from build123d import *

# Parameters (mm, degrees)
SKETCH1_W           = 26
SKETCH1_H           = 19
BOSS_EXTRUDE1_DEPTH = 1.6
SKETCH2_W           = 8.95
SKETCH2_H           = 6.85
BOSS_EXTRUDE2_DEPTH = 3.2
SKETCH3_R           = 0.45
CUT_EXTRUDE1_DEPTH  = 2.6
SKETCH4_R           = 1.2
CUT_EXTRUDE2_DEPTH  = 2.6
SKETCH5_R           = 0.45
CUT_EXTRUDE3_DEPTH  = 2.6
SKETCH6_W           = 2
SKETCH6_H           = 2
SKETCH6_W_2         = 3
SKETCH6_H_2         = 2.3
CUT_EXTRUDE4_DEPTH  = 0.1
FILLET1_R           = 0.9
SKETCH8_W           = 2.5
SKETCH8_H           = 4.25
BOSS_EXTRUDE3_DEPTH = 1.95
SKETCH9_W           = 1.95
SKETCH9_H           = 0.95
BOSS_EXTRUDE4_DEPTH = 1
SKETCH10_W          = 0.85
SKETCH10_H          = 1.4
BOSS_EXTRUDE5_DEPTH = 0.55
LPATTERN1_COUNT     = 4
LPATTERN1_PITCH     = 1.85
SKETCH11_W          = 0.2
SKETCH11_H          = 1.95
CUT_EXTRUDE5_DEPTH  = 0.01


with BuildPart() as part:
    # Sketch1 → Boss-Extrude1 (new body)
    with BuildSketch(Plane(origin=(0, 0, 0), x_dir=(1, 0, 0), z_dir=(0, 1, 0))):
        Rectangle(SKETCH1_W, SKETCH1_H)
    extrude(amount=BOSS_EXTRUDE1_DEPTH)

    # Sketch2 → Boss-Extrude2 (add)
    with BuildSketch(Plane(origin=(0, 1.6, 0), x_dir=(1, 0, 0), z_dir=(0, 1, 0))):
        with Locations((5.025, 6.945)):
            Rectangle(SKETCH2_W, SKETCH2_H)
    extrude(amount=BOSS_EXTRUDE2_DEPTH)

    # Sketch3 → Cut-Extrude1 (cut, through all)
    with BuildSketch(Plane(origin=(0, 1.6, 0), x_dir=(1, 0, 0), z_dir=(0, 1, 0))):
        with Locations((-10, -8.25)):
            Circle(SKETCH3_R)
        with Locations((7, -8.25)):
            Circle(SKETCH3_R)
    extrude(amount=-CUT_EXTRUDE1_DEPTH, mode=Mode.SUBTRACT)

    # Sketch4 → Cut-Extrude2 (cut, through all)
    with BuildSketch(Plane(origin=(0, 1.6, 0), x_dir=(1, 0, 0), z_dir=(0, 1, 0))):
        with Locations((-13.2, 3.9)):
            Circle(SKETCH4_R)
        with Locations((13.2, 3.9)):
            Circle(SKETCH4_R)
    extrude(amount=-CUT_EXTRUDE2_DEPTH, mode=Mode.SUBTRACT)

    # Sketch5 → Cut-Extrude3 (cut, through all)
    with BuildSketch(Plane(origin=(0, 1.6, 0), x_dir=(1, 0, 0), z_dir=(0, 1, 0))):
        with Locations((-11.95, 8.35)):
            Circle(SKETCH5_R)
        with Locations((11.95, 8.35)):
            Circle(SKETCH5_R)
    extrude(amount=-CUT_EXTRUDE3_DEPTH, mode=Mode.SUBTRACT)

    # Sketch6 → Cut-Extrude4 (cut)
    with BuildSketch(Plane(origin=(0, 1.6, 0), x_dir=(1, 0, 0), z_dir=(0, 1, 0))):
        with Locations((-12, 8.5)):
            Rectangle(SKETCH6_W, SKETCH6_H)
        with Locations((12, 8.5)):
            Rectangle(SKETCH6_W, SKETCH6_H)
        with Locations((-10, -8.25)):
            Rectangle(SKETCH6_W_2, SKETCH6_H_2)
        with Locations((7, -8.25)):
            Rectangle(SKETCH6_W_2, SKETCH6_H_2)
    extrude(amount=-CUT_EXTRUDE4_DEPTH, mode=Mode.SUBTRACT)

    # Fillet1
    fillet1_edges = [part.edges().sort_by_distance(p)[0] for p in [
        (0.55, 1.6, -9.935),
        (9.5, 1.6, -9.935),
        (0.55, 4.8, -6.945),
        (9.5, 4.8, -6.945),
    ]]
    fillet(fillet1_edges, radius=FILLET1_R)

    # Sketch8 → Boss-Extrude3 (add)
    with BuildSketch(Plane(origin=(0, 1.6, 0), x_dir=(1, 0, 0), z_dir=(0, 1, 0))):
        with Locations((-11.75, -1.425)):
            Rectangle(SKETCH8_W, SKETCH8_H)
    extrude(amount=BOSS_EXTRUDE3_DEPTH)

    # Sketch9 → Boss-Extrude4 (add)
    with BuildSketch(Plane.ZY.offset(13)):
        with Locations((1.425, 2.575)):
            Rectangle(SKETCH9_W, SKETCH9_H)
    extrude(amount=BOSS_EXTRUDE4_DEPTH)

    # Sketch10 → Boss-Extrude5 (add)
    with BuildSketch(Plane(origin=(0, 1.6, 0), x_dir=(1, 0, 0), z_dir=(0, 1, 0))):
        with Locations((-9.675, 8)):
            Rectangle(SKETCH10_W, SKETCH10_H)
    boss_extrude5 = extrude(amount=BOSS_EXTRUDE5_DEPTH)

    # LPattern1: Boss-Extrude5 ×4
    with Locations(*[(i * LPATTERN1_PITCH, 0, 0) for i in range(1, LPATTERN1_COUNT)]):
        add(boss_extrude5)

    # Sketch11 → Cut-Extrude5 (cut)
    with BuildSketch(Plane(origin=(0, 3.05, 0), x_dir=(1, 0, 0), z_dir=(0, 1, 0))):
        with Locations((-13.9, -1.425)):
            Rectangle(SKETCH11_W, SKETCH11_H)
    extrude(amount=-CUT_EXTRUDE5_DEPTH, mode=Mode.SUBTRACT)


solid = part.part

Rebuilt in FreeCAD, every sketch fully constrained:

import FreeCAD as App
import Part
import Sketcher

V = App.Vector


def edges_at(feature, points):
    """Names of the edges that pass closest to the given points."""
    edges = feature.Shape.Edges
    near = lambda p: min(range(len(edges)), key=lambda i: edges[i].distToShape(Part.Vertex(*p))[0])
    return sorted({f"Edge{near(p) + 1}" for p in points})

doc = App.newDocument("Part")
params = doc.addObject("Spreadsheet::Sheet", "Params")
for row, (alias, value) in enumerate([
    ("sketch1_width", "26 mm"),
    ("sketch1_height", "19 mm"),
    ("pad1_length", "1.6 mm"),
    ("sketch2_width", "8.95 mm"),
    ("sketch2_height", "6.85 mm"),
    ("pad2_length", "3.2 mm"),
    ("sketch3_diameter", "0.9 mm"),
    ("sketch4_diameter", "2.4 mm"),
    ("sketch5_diameter", "0.9 mm"),
    ("sketch6_width", "2 mm"),
    ("sketch6_width2", "3 mm"),
    ("sketch6_height", "2.3 mm"),
    ("pocket4_length", "0.1 mm"),
    ("fillet_radius", "0.9 mm"),
    ("sketch7_width", "2.5 mm"),
    ("sketch7_height", "4.25 mm"),
    ("pad3_length", "1.95 mm"),
    ("sketch8_width", "0.95 mm"),
    ("sketch8_height", "1.95 mm"),
    ("pad4_length", "1 mm"),
    ("sketch9_height", "1.4 mm"),
    ("sketch9_width", "0.85 mm"),
    ("pad5_length", "0.55 mm"),
    ("linearpattern_pitch", "1.85 mm"),
    ("sketch10_width", "0.2 mm"),
    ("sketch10_height", "1.95 mm"),
    ("pocket5_length", "0.01 mm"),
], start=1):
    params.set(f"A{row}", alias)
    params.set(f"B{row}", "=" + value)
    params.setAlias(f"B{row}", alias)

body = doc.addObject("PartDesign::Body", "Body")

# Sketch on XZ plane
sketch1 = body.newObject("Sketcher::SketchObject", "Sketch")
sketch1.AttachmentSupport = (doc.getObject("XZ_Plane"), [""])
sketch1.MapMode = "FlatFace"
sketch1.addGeometry(Part.LineSegment(V(-13, -9.5, 0), V(-13, 9.5, 0)), False)
sketch1.addGeometry(Part.LineSegment(V(-13, 9.5, 0), V(13, 9.5, 0)), False)
sketch1.addGeometry(Part.LineSegment(V(13, 9.5, 0), V(13, -9.5, 0)), False)
sketch1.addGeometry(Part.LineSegment(V(13, -9.5, 0), V(-13, -9.5, 0)), False)
sketch1.addConstraint(Sketcher.Constraint("Coincident", 0, 2, 1, 1))
sketch1.addConstraint(Sketcher.Constraint("Coincident", 1, 2, 2, 1))
sketch1.addConstraint(Sketcher.Constraint("Coincident", 2, 2, 3, 1))
sketch1.addConstraint(Sketcher.Constraint("Coincident", 3, 2, 0, 1))
sketch1.addConstraint(Sketcher.Constraint("Vertical", 0))
sketch1.addConstraint(Sketcher.Constraint("Horizontal", 1))
sketch1.addConstraint(Sketcher.Constraint("Vertical", 2))
sketch1.addConstraint(Sketcher.Constraint("Horizontal", 3))
sketch1.addConstraint(Sketcher.Constraint("Symmetric", 0, 2, 2, 2, -1, 1))
sketch1.addConstraint(Sketcher.Constraint("DistanceX", 1, 1, 1, 2, 26.0))
sketch1.addConstraint(Sketcher.Constraint("DistanceY", 0, 1, 0, 2, 19.0))
sketch1.setExpression("Constraints[9]", "Params.sketch1_width")
sketch1.setExpression("Constraints[10]", "Params.sketch1_height")
pad1 = body.newObject("PartDesign::Pad", "Pad")
pad1.Profile = sketch1
pad1.setExpression("Length", "Params.pad1_length")
pad1.Reversed = True

# Sketch on XZ plane
sketch2 = body.newObject("Sketcher::SketchObject", "Sketch001")
sketch2.AttachmentSupport = (doc.getObject("XZ_Plane"), [""])
sketch2.MapMode = "FlatFace"
sketch2.AttachmentOffset = App.Placement(V(0, 0, -1.6), App.Rotation())
sketch2.addGeometry(Part.LineSegment(V(0.55, -10.37, 0), V(0.55, -3.52, 0)), False)
sketch2.addGeometry(Part.LineSegment(V(0.55, -3.52, 0), V(9.5, -3.52, 0)), False)
sketch2.addGeometry(Part.LineSegment(V(9.5, -3.52, 0), V(9.5, -10.37, 0)), False)
sketch2.addGeometry(Part.LineSegment(V(9.5, -10.37, 0), V(0.55, -10.37, 0)), False)
sketch2.addConstraint(Sketcher.Constraint("Coincident", 0, 2, 1, 1))
sketch2.addConstraint(Sketcher.Constraint("Coincident", 1, 2, 2, 1))
sketch2.addConstraint(Sketcher.Constraint("Coincident", 2, 2, 3, 1))
sketch2.addConstraint(Sketcher.Constraint("Coincident", 3, 2, 0, 1))
sketch2.addConstraint(Sketcher.Constraint("Vertical", 0))
sketch2.addConstraint(Sketcher.Constraint("Horizontal", 1))
sketch2.addConstraint(Sketcher.Constraint("Vertical", 2))
sketch2.addConstraint(Sketcher.Constraint("Horizontal", 3))
sketch2.addConstraint(Sketcher.Constraint("DistanceX", 1, 1, 1, 2, 8.95))
sketch2.addConstraint(Sketcher.Constraint("DistanceY", 0, 1, 0, 2, 6.85))
sketch2.addConstraint(Sketcher.Constraint("DistanceX", -1, 1, 1, 2, 9.5))
sketch2.addConstraint(Sketcher.Constraint("DistanceY", 0, 2, -1, 1, 3.52))
sketch2.setExpression("Constraints[8]", "Params.sketch2_width")
sketch2.setExpression("Constraints[9]", "Params.sketch2_height")
pad2 = body.newObject("PartDesign::Pad", "Pad001")
pad2.Profile = sketch2
pad2.setExpression("Length", "Params.pad2_length")
pad2.Reversed = True

# Sketch on XZ plane
sketch3 = body.newObject("Sketcher::SketchObject", "Sketch002")
sketch3.AttachmentSupport = (doc.getObject("XZ_Plane"), [""])
sketch3.MapMode = "FlatFace"
sketch3.AttachmentOffset = App.Placement(V(0, 0, -1.6), App.Rotation())
sketch3.addGeometry(Part.Circle(V(-10, 8.25, 0), V(0, 0, 1), 0.45), False)
sketch3.addGeometry(Part.Circle(V(7, 8.25, 0), V(0, 0, 1), 0.45), False)
sketch3.addConstraint(Sketcher.Constraint("Equal", 0, 1))
sketch3.addConstraint(Sketcher.Constraint("Horizontal", 0, 3, 1, 3))
sketch3.addConstraint(Sketcher.Constraint("Diameter", 0, 0.9))
sketch3.addConstraint(Sketcher.Constraint("DistanceX", 0, 3, -1, 1, 10.0))
sketch3.addConstraint(Sketcher.Constraint("DistanceX", -1, 1, 1, 3, 7.0))
sketch3.addConstraint(Sketcher.Constraint("DistanceY", -1, 1, 0, 3, 8.25))
sketch3.setExpression("Constraints[2]", "Params.sketch3_diameter")
pocket1 = body.newObject("PartDesign::Pocket", "Pocket")
pocket1.Profile = sketch3
pocket1.Type = "ThroughAll"
pocket1.Reversed = True

# Sketch on XZ plane
sketch4 = body.newObject("Sketcher::SketchObject", "Sketch003")
sketch4.AttachmentSupport = (doc.getObject("XZ_Plane"), [""])
sketch4.MapMode = "FlatFace"
sketch4.AttachmentOffset = App.Placement(V(0, 0, -1.6), App.Rotation())
sketch4.addGeometry(Part.Circle(V(-13.2, -3.9, 0), V(0, 0, 1), 1.2), False)
sketch4.addGeometry(Part.Circle(V(13.2, -3.9, 0), V(0, 0, 1), 1.2), False)
sketch4.addConstraint(Sketcher.Constraint("Equal", 0, 1))
sketch4.addConstraint(Sketcher.Constraint("Symmetric", 0, 3, 1, 3, -2))
sketch4.addConstraint(Sketcher.Constraint("Diameter", 0, 2.4))
sketch4.addConstraint(Sketcher.Constraint("DistanceX", 0, 3, -1, 1, 13.2))
sketch4.addConstraint(Sketcher.Constraint("DistanceY", 0, 3, -1, 1, 3.9))
sketch4.setExpression("Constraints[2]", "Params.sketch4_diameter")
pocket2 = body.newObject("PartDesign::Pocket", "Pocket001")
pocket2.Profile = sketch4
pocket2.Type = "ThroughAll"
pocket2.Reversed = True

# Sketch on XZ plane
sketch5 = body.newObject("Sketcher::SketchObject", "Sketch004")
sketch5.AttachmentSupport = (doc.getObject("XZ_Plane"), [""])
sketch5.MapMode = "FlatFace"
sketch5.AttachmentOffset = App.Placement(V(0, 0, -1.6), App.Rotation())
sketch5.addGeometry(Part.Circle(V(-11.95, -8.35, 0), V(0, 0, 1), 0.45), False)
sketch5.addGeometry(Part.Circle(V(11.95, -8.35, 0), V(0, 0, 1), 0.45), False)
sketch5.addConstraint(Sketcher.Constraint("Equal", 0, 1))
sketch5.addConstraint(Sketcher.Constraint("Symmetric", 0, 3, 1, 3, -2))
sketch5.addConstraint(Sketcher.Constraint("Diameter", 0, 0.9))
sketch5.addConstraint(Sketcher.Constraint("DistanceX", 0, 3, 1, 3, 23.9))
sketch5.addConstraint(Sketcher.Constraint("DistanceY", 0, 3, -1, 1, 8.35))
sketch5.setExpression("Constraints[2]", "Params.sketch5_diameter")
pocket3 = body.newObject("PartDesign::Pocket", "Pocket002")
pocket3.Profile = sketch5
pocket3.Type = "ThroughAll"
pocket3.Reversed = True

# Sketch on XZ plane
sketch6 = body.newObject("Sketcher::SketchObject", "Sketch005")
sketch6.AttachmentSupport = (doc.getObject("XZ_Plane"), [""])
sketch6.MapMode = "FlatFace"
sketch6.AttachmentOffset = App.Placement(V(0, 0, -1.6), App.Rotation())
sketch6.addGeometry(Part.LineSegment(V(-13, -9.5, 0), V(-13, -7.5, 0)), False)
sketch6.addGeometry(Part.LineSegment(V(-13, -7.5, 0), V(-11, -7.5, 0)), False)
sketch6.addGeometry(Part.LineSegment(V(-11, -7.5, 0), V(-11, -9.5, 0)), False)
sketch6.addGeometry(Part.LineSegment(V(-11, -9.5, 0), V(-13, -9.5, 0)), False)
sketch6.addGeometry(Part.LineSegment(V(11, -9.5, 0), V(11, -7.5, 0)), False)
sketch6.addGeometry(Part.LineSegment(V(11, -7.5, 0), V(13, -7.5, 0)), False)
sketch6.addGeometry(Part.LineSegment(V(13, -7.5, 0), V(13, -9.5, 0)), False)
sketch6.addGeometry(Part.LineSegment(V(13, -9.5, 0), V(11, -9.5, 0)), False)
sketch6.addGeometry(Part.LineSegment(V(-11.5, 7.1, 0), V(-11.5, 9.4, 0)), False)
sketch6.addGeometry(Part.LineSegment(V(-11.5, 9.4, 0), V(-8.5, 9.4, 0)), False)
sketch6.addGeometry(Part.LineSegment(V(-8.5, 9.4, 0), V(-8.5, 7.1, 0)), False)
sketch6.addGeometry(Part.LineSegment(V(-8.5, 7.1, 0), V(-11.5, 7.1, 0)), False)
sketch6.addGeometry(Part.LineSegment(V(5.5, 7.1, 0), V(5.5, 9.4, 0)), False)
sketch6.addGeometry(Part.LineSegment(V(5.5, 9.4, 0), V(8.5, 9.4, 0)), False)
sketch6.addGeometry(Part.LineSegment(V(8.5, 9.4, 0), V(8.5, 7.1, 0)), False)
sketch6.addGeometry(Part.LineSegment(V(8.5, 7.1, 0), V(5.5, 7.1, 0)), False)
sketch6.addConstraint(Sketcher.Constraint("Coincident", 0, 2, 1, 1))
sketch6.addConstraint(Sketcher.Constraint("Coincident", 1, 2, 2, 1))
sketch6.addConstraint(Sketcher.Constraint("Coincident", 2, 2, 3, 1))
sketch6.addConstraint(Sketcher.Constraint("Coincident", 3, 2, 0, 1))
sketch6.addConstraint(Sketcher.Constraint("Coincident", 4, 2, 5, 1))
sketch6.addConstraint(Sketcher.Constraint("Coincident", 5, 2, 6, 1))
sketch6.addConstraint(Sketcher.Constraint("Coincident", 6, 2, 7, 1))
sketch6.addConstraint(Sketcher.Constraint("Coincident", 7, 2, 4, 1))
sketch6.addConstraint(Sketcher.Constraint("Coincident", 8, 2, 9, 1))
sketch6.addConstraint(Sketcher.Constraint("Coincident", 9, 2, 10, 1))
sketch6.addConstraint(Sketcher.Constraint("Coincident", 10, 2, 11, 1))
sketch6.addConstraint(Sketcher.Constraint("Coincident", 11, 2, 8, 1))
sketch6.addConstraint(Sketcher.Constraint("Coincident", 12, 2, 13, 1))
sketch6.addConstraint(Sketcher.Constraint("Coincident", 13, 2, 14, 1))
sketch6.addConstraint(Sketcher.Constraint("Coincident", 14, 2, 15, 1))
sketch6.addConstraint(Sketcher.Constraint("Coincident", 15, 2, 12, 1))
sketch6.addConstraint(Sketcher.Constraint("Vertical", 0))
sketch6.addConstraint(Sketcher.Constraint("Horizontal", 1))
sketch6.addConstraint(Sketcher.Constraint("Vertical", 2))
sketch6.addConstraint(Sketcher.Constraint("Horizontal", 3))
sketch6.addConstraint(Sketcher.Constraint("Vertical", 4))
sketch6.addConstraint(Sketcher.Constraint("Horizontal", 5))
sketch6.addConstraint(Sketcher.Constraint("Vertical", 6))
sketch6.addConstraint(Sketcher.Constraint("Horizontal", 7))
sketch6.addConstraint(Sketcher.Constraint("Vertical", 8))
sketch6.addConstraint(Sketcher.Constraint("Horizontal", 9))
sketch6.addConstraint(Sketcher.Constraint("Vertical", 10))
sketch6.addConstraint(Sketcher.Constraint("Horizontal", 11))
sketch6.addConstraint(Sketcher.Constraint("Vertical", 12))
sketch6.addConstraint(Sketcher.Constraint("Horizontal", 13))
sketch6.addConstraint(Sketcher.Constraint("Vertical", 14))
sketch6.addConstraint(Sketcher.Constraint("Horizontal", 15))
sketch6.addConstraint(Sketcher.Constraint("Symmetric", 1, 2, 4, 2, -2))
sketch6.addConstraint(Sketcher.Constraint("Symmetric", 3, 2, 6, 2, -2))
sketch6.addConstraint(Sketcher.Constraint("Symmetric", 9, 2, 13, 2, -2))
sketch6.addConstraint(Sketcher.Constraint("Horizontal", 11, 2, 14, 2))
sketch6.addConstraint(Sketcher.Constraint("Equal", 11, 13))
sketch6.addConstraint(Sketcher.Constraint("Equal", 7, 0))
sketch6.addConstraint(Sketcher.Constraint("DistanceX", 1, 1, 1, 2, 2.0))
sketch6.addConstraint(Sketcher.Constraint("DistanceX", 9, 1, 9, 2, 3.0))
sketch6.addConstraint(Sketcher.Constraint("DistanceY", 8, 1, 8, 2, 2.3))
sketch6.addConstraint(Sketcher.Constraint("DistanceX", 0, 2, -1, 1, 13.0))
sketch6.addConstraint(Sketcher.Constraint("DistanceX", 9, 2, 12, 2, 14.0))
sketch6.addConstraint(Sketcher.Constraint("DistanceY", 0, 2, -1, 1, 7.5))
sketch6.addConstraint(Sketcher.Constraint("DistanceY", -1, 1, 8, 2, 9.4))
sketch6.setExpression("Constraints[38]", "Params.sketch6_width")
sketch6.setExpression("Constraints[39]", "Params.sketch6_width2")
sketch6.setExpression("Constraints[40]", "Params.sketch6_height")
pocket4 = body.newObject("PartDesign::Pocket", "Pocket003")
pocket4.Profile = sketch6
pocket4.setExpression("Length", "Params.pocket4_length")
pocket4.Reversed = True
doc.recompute()

fillet = body.newObject("PartDesign::Fillet", "Fillet")
fillet.Base = (pocket4, edges_at(pocket4, [
    (0.55, 1.6, -9.935),
    (9.5, 1.6, -9.935),
    (0.55, 4.8, -6.945),
    (9.5, 4.8, -6.945),
]))
fillet.setExpression("Radius", "Params.fillet_radius")

# Sketch on XZ plane
sketch7 = body.newObject("Sketcher::SketchObject", "Sketch006")
sketch7.AttachmentSupport = (doc.getObject("XZ_Plane"), [""])
sketch7.MapMode = "FlatFace"
sketch7.AttachmentOffset = App.Placement(V(0, 0, -1.6), App.Rotation())
sketch7.addGeometry(Part.LineSegment(V(-13, -0.7, 0), V(-13, 3.55, 0)), False)
sketch7.addGeometry(Part.LineSegment(V(-13, 3.55, 0), V(-10.5, 3.55, 0)), False)
sketch7.addGeometry(Part.LineSegment(V(-10.5, 3.55, 0), V(-10.5, -0.7, 0)), False)
sketch7.addGeometry(Part.LineSegment(V(-10.5, -0.7, 0), V(-13, -0.7, 0)), False)
sketch7.addConstraint(Sketcher.Constraint("Coincident", 0, 2, 1, 1))
sketch7.addConstraint(Sketcher.Constraint("Coincident", 1, 2, 2, 1))
sketch7.addConstraint(Sketcher.Constraint("Coincident", 2, 2, 3, 1))
sketch7.addConstraint(Sketcher.Constraint("Coincident", 3, 2, 0, 1))
sketch7.addConstraint(Sketcher.Constraint("Vertical", 0))
sketch7.addConstraint(Sketcher.Constraint("Horizontal", 1))
sketch7.addConstraint(Sketcher.Constraint("Vertical", 2))
sketch7.addConstraint(Sketcher.Constraint("Horizontal", 3))
sketch7.addConstraint(Sketcher.Constraint("DistanceX", 1, 1, 1, 2, 2.5))
sketch7.addConstraint(Sketcher.Constraint("DistanceX", 0, 2, -1, 1, 13.0))
sketch7.addConstraint(Sketcher.Constraint("DistanceY", 0, 1, 0, 2, 4.25))
sketch7.addConstraint(Sketcher.Constraint("DistanceY", 2, 2, -1, 1, 0.7))
sketch7.setExpression("Constraints[8]", "Params.sketch7_width")
sketch7.setExpression("Constraints[10]", "Params.sketch7_height")
pad3 = body.newObject("PartDesign::Pad", "Pad002")
pad3.Profile = sketch7
pad3.setExpression("Length", "Params.pad3_length")
pad3.Reversed = True

# Sketch on YZ plane
sketch8 = body.newObject("Sketcher::SketchObject", "Sketch007")
sketch8.AttachmentSupport = (doc.getObject("YZ_Plane"), [""])
sketch8.MapMode = "FlatFace"
sketch8.AttachmentOffset = App.Placement(V(0, 0, -13), App.Rotation())
sketch8.addGeometry(Part.LineSegment(V(3.05, 0.45, 0), V(2.1, 0.45, 0)), False)
sketch8.addGeometry(Part.LineSegment(V(2.1, 0.45, 0), V(2.1, 2.4, 0)), False)
sketch8.addGeometry(Part.LineSegment(V(2.1, 2.4, 0), V(3.05, 2.4, 0)), False)
sketch8.addGeometry(Part.LineSegment(V(3.05, 2.4, 0), V(3.05, 0.45, 0)), False)
sketch8.addConstraint(Sketcher.Constraint("Coincident", 0, 2, 1, 1))
sketch8.addConstraint(Sketcher.Constraint("Coincident", 1, 2, 2, 1))
sketch8.addConstraint(Sketcher.Constraint("Coincident", 2, 2, 3, 1))
sketch8.addConstraint(Sketcher.Constraint("Coincident", 3, 2, 0, 1))
sketch8.addConstraint(Sketcher.Constraint("Horizontal", 0))
sketch8.addConstraint(Sketcher.Constraint("Vertical", 1))
sketch8.addConstraint(Sketcher.Constraint("Horizontal", 2))
sketch8.addConstraint(Sketcher.Constraint("Vertical", 3))
sketch8.addConstraint(Sketcher.Constraint("DistanceX", 0, 2, 0, 1, 0.95))
sketch8.addConstraint(Sketcher.Constraint("DistanceY", 1, 1, 1, 2, 1.95))
sketch8.addConstraint(Sketcher.Constraint("DistanceX", -1, 1, 0, 2, 2.1))
sketch8.addConstraint(Sketcher.Constraint("DistanceY", -1, 1, 1, 2, 2.4))
sketch8.setExpression("Constraints[8]", "Params.sketch8_width")
sketch8.setExpression("Constraints[9]", "Params.sketch8_height")
pad4 = body.newObject("PartDesign::Pad", "Pad003")
pad4.Profile = sketch8
pad4.setExpression("Length", "Params.pad4_length")
pad4.Reversed = True

# Sketch on XZ plane
sketch9 = body.newObject("Sketcher::SketchObject", "Sketch008")
sketch9.AttachmentSupport = (doc.getObject("XZ_Plane"), [""])
sketch9.MapMode = "FlatFace"
sketch9.AttachmentOffset = App.Placement(V(0, 0, -1.6), App.Rotation())
sketch9.addGeometry(Part.LineSegment(V(-10.1, -8.7, 0), V(-10.1, -7.3, 0)), False)
sketch9.addGeometry(Part.LineSegment(V(-10.1, -7.3, 0), V(-9.25, -7.3, 0)), False)
sketch9.addGeometry(Part.LineSegment(V(-9.25, -7.3, 0), V(-9.25, -8.7, 0)), False)
sketch9.addGeometry(Part.LineSegment(V(-9.25, -8.7, 0), V(-10.1, -8.7, 0)), False)
sketch9.addConstraint(Sketcher.Constraint("Coincident", 0, 2, 1, 1))
sketch9.addConstraint(Sketcher.Constraint("Coincident", 1, 2, 2, 1))
sketch9.addConstraint(Sketcher.Constraint("Coincident", 2, 2, 3, 1))
sketch9.addConstraint(Sketcher.Constraint("Coincident", 3, 2, 0, 1))
sketch9.addConstraint(Sketcher.Constraint("Vertical", 0))
sketch9.addConstraint(Sketcher.Constraint("Horizontal", 1))
sketch9.addConstraint(Sketcher.Constraint("Vertical", 2))
sketch9.addConstraint(Sketcher.Constraint("Horizontal", 3))
sketch9.addConstraint(Sketcher.Constraint("DistanceY", 0, 1, 0, 2, 1.4))
sketch9.addConstraint(Sketcher.Constraint("DistanceX", 1, 1, 1, 2, 0.85))
sketch9.addConstraint(Sketcher.Constraint("DistanceX", 0, 2, -1, 1, 10.1))
sketch9.addConstraint(Sketcher.Constraint("DistanceY", 0, 2, -1, 1, 7.3))
sketch9.setExpression("Constraints[8]", "Params.sketch9_height")
sketch9.setExpression("Constraints[9]", "Params.sketch9_width")
pad5 = body.newObject("PartDesign::Pad", "Pad004")
pad5.Profile = sketch9
pad5.setExpression("Length", "Params.pad5_length")
pad5.Reversed = True
doc.recompute()

linearpattern = body.newObject("PartDesign::LinearPattern", "LinearPattern")
linearpattern.Originals = [pad5]
linearpattern.Direction = (doc.getObject("X_Axis"), [""])
linearpattern.Mode = "offset"
linearpattern.setExpression("Offset", "Params.linearpattern_pitch")
linearpattern.Occurrences = 4
body.Tip = linearpattern

# Sketch on XZ plane
sketch10 = body.newObject("Sketcher::SketchObject", "Sketch009")
sketch10.AttachmentSupport = (doc.getObject("XZ_Plane"), [""])
sketch10.MapMode = "FlatFace"
sketch10.AttachmentOffset = App.Placement(V(0, 0, -3.05), App.Rotation())
sketch10.addGeometry(Part.LineSegment(V(-14, 0.45, 0), V(-14, 2.4, 0)), False)
sketch10.addGeometry(Part.LineSegment(V(-14, 2.4, 0), V(-13.8, 2.4, 0)), False)
sketch10.addGeometry(Part.LineSegment(V(-13.8, 2.4, 0), V(-13.8, 0.45, 0)), False)
sketch10.addGeometry(Part.LineSegment(V(-13.8, 0.45, 0), V(-14, 0.45, 0)), False)
sketch10.addConstraint(Sketcher.Constraint("Coincident", 0, 2, 1, 1))
sketch10.addConstraint(Sketcher.Constraint("Coincident", 1, 2, 2, 1))
sketch10.addConstraint(Sketcher.Constraint("Coincident", 2, 2, 3, 1))
sketch10.addConstraint(Sketcher.Constraint("Coincident", 3, 2, 0, 1))
sketch10.addConstraint(Sketcher.Constraint("Vertical", 0))
sketch10.addConstraint(Sketcher.Constraint("Horizontal", 1))
sketch10.addConstraint(Sketcher.Constraint("Vertical", 2))
sketch10.addConstraint(Sketcher.Constraint("Horizontal", 3))
sketch10.addConstraint(Sketcher.Constraint("DistanceX", 1, 1, 1, 2, 0.2))
sketch10.addConstraint(Sketcher.Constraint("DistanceX", 0, 2, -1, 1, 14.0))
sketch10.addConstraint(Sketcher.Constraint("DistanceY", 0, 1, 0, 2, 1.95))
sketch10.addConstraint(Sketcher.Constraint("DistanceY", -1, 1, 0, 2, 2.4))
sketch10.setExpression("Constraints[8]", "Params.sketch10_width")
sketch10.setExpression("Constraints[10]", "Params.sketch10_height")
pocket5 = body.newObject("PartDesign::Pocket", "Pocket004")
pocket5.Profile = sketch10
pocket5.setExpression("Length", "Params.pocket5_length")
pocket5.Reversed = True

doc.recompute()
